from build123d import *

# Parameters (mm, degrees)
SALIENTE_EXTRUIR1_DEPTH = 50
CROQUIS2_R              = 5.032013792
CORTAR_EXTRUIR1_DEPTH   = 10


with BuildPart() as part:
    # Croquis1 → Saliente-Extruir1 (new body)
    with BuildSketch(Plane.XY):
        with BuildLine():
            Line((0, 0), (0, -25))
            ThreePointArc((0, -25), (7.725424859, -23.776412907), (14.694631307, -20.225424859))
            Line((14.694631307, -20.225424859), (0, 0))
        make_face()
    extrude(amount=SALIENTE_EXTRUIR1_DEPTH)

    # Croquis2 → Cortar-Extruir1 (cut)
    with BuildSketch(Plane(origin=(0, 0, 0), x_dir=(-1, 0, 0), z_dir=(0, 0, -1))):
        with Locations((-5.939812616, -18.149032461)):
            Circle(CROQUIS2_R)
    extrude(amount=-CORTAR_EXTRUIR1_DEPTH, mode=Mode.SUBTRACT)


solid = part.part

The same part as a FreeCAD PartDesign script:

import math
import FreeCAD as App
import Part
import Sketcher
from FreeCAD import Vector
Q = App.Units.Quantity

doc = App.newDocument("Part")
params = doc.addObject("Spreadsheet::Sheet", "Params")
for row, (alias, value) in enumerate([
    ("sketch1_radius", "25 mm"),
    ("pad1_length", "50 mm"),
    ("pocket1_length", "10 mm"),
], start=1):
    params.set(f"A{row}", alias)
    params.set(f"B{row}", "=" + value)
    params.setAlias(f"B{row}", alias)

body = doc.addObject("PartDesign::Body", "Body")

sketch1 = body.newObject("Sketcher::SketchObject", "Sketch")
sketch1.AttachmentSupport = (doc.getObject("XY_Plane"), [""])
sketch1.MapMode = "FlatFace"
sketch1.addGeometry(Part.LineSegment(Vector(0, 0, 0), Vector(0, -25, 0)), False)
sketch1.addGeometry(Part.ArcOfCircle(Part.Circle(Vector(0, 0, 0), Vector(0, 0, 1), 25), math.radians(-90), math.radians(-54)), False)
sketch1.addGeometry(Part.LineSegment(Vector(15, -20, 0), Vector(0, 0, 0)), False)
sketch1.addConstraint(Sketcher.Constraint("Coincident", 0, 2, 1, 1))
sketch1.addConstraint(Sketcher.Constraint("Coincident", 1, 2, 2, 1))
sketch1.addConstraint(Sketcher.Constraint("Coincident", 2, 2, 0, 1))
sketch1.addConstraint(Sketcher.Constraint("Vertical", 0))
sketch1.addConstraint(Sketcher.Constraint("Coincident", 1, 3, -1, 1))
sketch1.addConstraint(Sketcher.Constraint("Coincident", 2, 2, -1, 1))
sketch1.addConstraint(Sketcher.Constraint("Radius", 1, Q("25 mm")))
sketch1.addConstraint(Sketcher.Constraint("Angle", 2, Q("126 deg")))
sketch1.setExpression("Constraints[6]", "Params.sketch1_radius")
pad1 = body.newObject("PartDesign::Pad", "Pad")
pad1.Profile = sketch1
pad1.setExpression("Length", "Params.pad1_length")

sketch2 = body.newObject("Sketcher::SketchObject", "Sketch001")
sketch2.AttachmentSupport = (doc.getObject("XY_Plane"), [""])
sketch2.MapMode = "FlatFace"
sketch2.addGeometry(Part.Circle(Vector(6, -18, 0), Vector(0, 0, 1), 5), False)
sketch2.addConstraint(Sketcher.Constraint("Diameter", 0, Q("10.064028 mm")))
sketch2.addConstraint(Sketcher.Constraint("DistanceX", -1, 1, 0, 3, Q("5.939813 mm")))
sketch2.addConstraint(Sketcher.Constraint("DistanceY", 0, 3, -1, 1, Q("18.149032 mm")))
pocket1 = body.newObject("PartDesign::Pocket", "Pocket")
pocket1.Profile = sketch2
pocket1.setExpression("Length", "Params.pocket1_length")
pocket1.Reversed = True

doc.recompute()
